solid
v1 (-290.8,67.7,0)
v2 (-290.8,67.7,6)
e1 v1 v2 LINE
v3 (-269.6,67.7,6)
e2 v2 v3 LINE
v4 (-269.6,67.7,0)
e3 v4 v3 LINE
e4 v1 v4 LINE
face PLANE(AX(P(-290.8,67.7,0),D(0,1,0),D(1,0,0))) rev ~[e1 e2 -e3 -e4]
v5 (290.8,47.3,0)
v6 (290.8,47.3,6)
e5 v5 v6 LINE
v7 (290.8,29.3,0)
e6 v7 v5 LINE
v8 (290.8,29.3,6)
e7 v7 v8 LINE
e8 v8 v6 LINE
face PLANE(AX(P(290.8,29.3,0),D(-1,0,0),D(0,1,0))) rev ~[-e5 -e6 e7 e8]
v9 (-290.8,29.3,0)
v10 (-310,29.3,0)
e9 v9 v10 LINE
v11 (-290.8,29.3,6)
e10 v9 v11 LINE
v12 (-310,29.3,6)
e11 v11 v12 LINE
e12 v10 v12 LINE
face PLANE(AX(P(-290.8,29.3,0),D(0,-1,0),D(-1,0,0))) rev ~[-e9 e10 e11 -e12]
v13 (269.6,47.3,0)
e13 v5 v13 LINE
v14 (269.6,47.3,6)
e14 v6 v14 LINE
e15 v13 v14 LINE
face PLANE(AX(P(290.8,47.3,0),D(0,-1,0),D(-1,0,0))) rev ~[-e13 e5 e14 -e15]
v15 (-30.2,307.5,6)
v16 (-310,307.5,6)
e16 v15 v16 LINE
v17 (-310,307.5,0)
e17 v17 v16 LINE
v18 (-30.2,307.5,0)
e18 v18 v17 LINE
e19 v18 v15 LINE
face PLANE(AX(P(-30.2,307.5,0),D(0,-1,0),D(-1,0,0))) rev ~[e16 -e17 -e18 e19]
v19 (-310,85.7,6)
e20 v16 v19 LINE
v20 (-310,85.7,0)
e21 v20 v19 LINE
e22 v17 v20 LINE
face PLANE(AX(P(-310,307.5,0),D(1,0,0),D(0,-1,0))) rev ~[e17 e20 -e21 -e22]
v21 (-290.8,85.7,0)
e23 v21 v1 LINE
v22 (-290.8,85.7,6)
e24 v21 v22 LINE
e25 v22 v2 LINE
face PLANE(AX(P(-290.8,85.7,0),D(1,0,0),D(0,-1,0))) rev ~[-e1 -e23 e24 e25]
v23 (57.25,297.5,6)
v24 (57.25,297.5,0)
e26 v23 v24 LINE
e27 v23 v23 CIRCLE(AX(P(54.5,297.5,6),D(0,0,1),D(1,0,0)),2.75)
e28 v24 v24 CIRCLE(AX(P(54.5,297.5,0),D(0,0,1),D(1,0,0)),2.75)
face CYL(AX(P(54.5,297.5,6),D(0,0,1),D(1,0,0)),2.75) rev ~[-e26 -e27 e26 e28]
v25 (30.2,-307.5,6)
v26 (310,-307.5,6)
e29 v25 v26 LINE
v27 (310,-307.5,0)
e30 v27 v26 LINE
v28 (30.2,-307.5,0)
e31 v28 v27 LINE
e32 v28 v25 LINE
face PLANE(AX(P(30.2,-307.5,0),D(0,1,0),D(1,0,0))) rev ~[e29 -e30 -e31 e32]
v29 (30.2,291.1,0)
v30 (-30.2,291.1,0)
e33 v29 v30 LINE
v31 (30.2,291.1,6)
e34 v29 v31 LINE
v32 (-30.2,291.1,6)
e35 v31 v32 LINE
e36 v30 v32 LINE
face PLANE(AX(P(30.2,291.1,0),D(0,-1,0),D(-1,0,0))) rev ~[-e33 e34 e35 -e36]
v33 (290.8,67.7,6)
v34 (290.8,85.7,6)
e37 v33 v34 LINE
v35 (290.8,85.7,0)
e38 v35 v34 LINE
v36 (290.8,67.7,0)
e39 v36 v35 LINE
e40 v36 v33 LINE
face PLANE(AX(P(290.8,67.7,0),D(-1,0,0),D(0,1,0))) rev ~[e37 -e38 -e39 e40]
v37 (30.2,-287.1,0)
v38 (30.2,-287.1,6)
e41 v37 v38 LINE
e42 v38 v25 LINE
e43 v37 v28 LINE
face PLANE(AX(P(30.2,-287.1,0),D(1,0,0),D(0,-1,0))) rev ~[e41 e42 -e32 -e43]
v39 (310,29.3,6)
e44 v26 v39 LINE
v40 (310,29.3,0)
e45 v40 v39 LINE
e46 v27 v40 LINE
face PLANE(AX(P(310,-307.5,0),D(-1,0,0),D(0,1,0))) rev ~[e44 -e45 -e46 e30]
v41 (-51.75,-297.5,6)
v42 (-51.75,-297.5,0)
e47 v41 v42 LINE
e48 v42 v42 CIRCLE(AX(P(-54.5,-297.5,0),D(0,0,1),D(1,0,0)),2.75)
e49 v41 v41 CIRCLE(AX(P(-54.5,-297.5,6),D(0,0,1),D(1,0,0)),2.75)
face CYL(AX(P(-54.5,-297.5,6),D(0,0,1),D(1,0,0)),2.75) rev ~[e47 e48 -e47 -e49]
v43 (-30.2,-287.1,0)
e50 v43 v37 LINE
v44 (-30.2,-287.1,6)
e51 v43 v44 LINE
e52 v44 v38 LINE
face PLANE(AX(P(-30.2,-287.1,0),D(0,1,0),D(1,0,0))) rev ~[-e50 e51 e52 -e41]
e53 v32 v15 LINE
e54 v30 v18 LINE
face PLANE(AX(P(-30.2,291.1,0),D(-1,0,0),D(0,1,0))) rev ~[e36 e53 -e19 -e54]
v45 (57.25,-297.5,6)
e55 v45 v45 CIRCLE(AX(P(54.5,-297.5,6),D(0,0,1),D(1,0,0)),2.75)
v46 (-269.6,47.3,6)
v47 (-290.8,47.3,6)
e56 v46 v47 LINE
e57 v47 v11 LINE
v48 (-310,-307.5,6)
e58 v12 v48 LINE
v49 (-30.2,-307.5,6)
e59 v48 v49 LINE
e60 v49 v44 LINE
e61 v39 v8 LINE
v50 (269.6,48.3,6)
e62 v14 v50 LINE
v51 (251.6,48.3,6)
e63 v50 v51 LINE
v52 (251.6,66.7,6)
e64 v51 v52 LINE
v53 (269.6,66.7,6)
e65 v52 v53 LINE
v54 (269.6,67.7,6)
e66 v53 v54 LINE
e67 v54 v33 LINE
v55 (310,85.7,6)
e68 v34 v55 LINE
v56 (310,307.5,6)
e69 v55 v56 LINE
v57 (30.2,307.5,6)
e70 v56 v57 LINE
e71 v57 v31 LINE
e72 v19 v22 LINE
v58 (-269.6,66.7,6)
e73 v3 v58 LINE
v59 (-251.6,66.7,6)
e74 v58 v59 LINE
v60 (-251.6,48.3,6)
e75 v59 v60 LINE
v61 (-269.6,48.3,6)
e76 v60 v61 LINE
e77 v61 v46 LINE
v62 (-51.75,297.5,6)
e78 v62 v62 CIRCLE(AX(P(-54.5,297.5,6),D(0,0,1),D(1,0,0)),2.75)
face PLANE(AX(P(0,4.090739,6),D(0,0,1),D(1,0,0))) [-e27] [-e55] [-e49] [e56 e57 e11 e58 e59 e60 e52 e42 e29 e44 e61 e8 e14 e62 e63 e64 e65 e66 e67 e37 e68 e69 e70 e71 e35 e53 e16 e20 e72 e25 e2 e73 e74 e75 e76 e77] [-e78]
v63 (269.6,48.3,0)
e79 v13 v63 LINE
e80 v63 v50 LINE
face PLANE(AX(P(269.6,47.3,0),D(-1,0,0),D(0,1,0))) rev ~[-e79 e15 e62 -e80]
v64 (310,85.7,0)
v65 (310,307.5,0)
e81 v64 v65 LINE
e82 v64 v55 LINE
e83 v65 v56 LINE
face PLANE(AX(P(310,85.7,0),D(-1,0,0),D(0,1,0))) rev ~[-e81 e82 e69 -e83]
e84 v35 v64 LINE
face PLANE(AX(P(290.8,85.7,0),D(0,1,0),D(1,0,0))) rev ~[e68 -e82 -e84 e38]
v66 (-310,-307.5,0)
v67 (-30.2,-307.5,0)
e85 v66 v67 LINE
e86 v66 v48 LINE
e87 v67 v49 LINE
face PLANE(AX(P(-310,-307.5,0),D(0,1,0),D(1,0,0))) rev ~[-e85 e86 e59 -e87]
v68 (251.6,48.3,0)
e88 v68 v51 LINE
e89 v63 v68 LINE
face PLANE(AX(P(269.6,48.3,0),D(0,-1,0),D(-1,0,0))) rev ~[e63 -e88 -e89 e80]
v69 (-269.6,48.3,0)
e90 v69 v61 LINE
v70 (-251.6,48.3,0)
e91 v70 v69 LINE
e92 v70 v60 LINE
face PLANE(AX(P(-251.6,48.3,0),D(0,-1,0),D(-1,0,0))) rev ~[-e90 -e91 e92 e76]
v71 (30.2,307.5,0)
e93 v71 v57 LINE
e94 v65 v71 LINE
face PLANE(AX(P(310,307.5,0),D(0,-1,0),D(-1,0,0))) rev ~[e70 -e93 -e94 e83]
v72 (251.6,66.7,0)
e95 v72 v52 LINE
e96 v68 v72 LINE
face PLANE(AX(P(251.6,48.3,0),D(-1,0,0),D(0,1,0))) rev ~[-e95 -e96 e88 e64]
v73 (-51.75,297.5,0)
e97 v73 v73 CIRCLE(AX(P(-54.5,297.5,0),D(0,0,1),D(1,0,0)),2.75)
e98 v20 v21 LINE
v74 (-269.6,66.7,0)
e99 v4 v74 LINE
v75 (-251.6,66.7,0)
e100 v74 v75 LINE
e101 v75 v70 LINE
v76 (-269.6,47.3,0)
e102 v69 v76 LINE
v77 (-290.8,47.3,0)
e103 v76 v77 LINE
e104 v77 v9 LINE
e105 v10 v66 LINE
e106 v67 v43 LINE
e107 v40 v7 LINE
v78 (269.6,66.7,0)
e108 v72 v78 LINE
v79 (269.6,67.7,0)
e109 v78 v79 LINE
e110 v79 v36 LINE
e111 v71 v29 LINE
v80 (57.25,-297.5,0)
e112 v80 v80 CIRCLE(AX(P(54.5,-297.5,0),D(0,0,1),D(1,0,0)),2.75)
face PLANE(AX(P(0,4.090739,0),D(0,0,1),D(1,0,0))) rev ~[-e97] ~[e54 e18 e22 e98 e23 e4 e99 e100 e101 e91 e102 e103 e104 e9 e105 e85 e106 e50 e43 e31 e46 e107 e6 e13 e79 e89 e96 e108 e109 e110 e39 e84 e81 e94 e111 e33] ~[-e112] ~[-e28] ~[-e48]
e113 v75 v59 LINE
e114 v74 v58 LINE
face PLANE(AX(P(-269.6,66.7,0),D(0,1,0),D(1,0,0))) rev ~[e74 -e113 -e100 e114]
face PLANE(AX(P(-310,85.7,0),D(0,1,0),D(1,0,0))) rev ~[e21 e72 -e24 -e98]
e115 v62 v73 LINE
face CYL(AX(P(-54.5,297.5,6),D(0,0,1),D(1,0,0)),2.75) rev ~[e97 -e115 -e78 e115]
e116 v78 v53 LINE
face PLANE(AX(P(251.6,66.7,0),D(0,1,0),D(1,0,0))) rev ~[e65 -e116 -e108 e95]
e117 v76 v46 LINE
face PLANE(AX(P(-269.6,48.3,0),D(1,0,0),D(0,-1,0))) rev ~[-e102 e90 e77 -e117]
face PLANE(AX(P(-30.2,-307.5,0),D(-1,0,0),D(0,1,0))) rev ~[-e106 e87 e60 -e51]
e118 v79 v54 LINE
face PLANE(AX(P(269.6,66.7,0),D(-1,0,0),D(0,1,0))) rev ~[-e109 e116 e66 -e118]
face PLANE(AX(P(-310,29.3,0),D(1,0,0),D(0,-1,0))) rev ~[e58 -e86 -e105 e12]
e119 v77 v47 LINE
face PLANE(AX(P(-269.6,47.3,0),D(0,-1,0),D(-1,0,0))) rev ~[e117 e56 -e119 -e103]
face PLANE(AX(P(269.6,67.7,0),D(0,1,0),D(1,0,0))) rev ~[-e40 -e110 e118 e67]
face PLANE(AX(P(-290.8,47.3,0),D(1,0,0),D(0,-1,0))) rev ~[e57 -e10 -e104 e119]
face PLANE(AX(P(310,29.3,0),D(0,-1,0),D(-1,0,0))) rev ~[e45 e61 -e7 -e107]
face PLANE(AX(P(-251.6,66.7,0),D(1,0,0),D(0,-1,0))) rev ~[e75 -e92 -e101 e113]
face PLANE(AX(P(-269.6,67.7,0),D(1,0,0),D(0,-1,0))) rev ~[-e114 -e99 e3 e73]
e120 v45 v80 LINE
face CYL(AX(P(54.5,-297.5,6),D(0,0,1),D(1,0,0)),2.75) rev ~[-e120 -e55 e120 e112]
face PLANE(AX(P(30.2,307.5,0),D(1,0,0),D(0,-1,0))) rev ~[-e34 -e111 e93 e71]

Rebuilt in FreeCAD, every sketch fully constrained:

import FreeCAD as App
import Part
import Sketcher

V = App.Vector


def add_polygon(sketch, points):
    """Adds a closed chain of lines whose ends are joined by coincident constraints."""
    first, n = sketch.GeometryCount, len(points)
    for a, b in zip(points, points[1:] + points[:1]):
        sketch.addGeometry(Part.LineSegment(App.Vector(*a, 0), App.Vector(*b, 0)), False)
    for i in range(n):
        sketch.addConstraint(Sketcher.Constraint("Coincident", first + i, 2, first + (i + 1) % n, 1))

doc = App.newDocument("Part")
body = doc.addObject("PartDesign::Body", "Body")

sketch1 = doc.addObject("Sketcher::SketchObject", "Sketch")
body.addObject(sketch1)
sketch1.AttachmentSupport = (doc.XY_Plane, [""])
sketch1.MapMode = "FlatFace"
add_polygon(sketch1, [(30.2, -307.5), (310, -307.5), (310, 29.3), (290.8, 29.3), (290.8, 47.3), (269.6, 47.3), (269.6, 48.3), (251.6, 48.3), (251.6, 66.7), (269.6, 66.7), (269.6, 67.7), (290.8, 67.7), (290.8, 85.7), (310, 85.7), (310, 307.5), (30.2, 307.5), (30.2, 291.1), (-30.2, 291.1), (-30.2, 307.5), (-310, 307.5), (-310, 85.7), (-290.8, 85.7), (-290.8, 67.7), (-269.6, 67.7), (-269.6, 66.7), (-251.6, 66.7), (-251.6, 48.3), (-269.6, 48.3), (-269.6, 47.3), (-290.8, 47.3), (-290.8, 29.3), (-310, 29.3), (-310, -307.5), (-30.2, -307.5), (-30.2, -287.1), (30.2, -287.1)])
sketch1.addConstraint([
    Sketcher.Constraint("Horizontal", 0),
    Sketcher.Constraint("Vertical", 1),
    Sketcher.Constraint("Horizontal", 2),
    Sketcher.Constraint("Vertical", 3),
    Sketcher.Constraint("Horizontal", 4),
    Sketcher.Constraint("Vertical", 5),
    Sketcher.Constraint("Horizontal", 6),
    Sketcher.Constraint("Vertical", 7),
    Sketcher.Constraint("Horizontal", 8),
    Sketcher.Constraint("Vertical", 9),
    Sketcher.Constraint("Horizontal", 10),
    Sketcher.Constraint("Vertical", 11),
    Sketcher.Constraint("Horizontal", 12),
    Sketcher.Constraint("Vertical", 13),
    Sketcher.Constraint("Horizontal", 14),
    Sketcher.Constraint("Vertical", 15),
    Sketcher.Constraint("Horizontal", 16),
    Sketcher.Constraint("Vertical", 17),
    Sketcher.Constraint("Horizontal", 18),
    Sketcher.Constraint("Vertical", 19),
    Sketcher.Constraint("Horizontal", 20),
    Sketcher.Constraint("Vertical", 21),
    Sketcher.Constraint("Horizontal", 22),
    Sketcher.Constraint("Vertical", 23),
    Sketcher.Constraint("Horizontal", 24),
    Sketcher.Constraint("Vertical", 25),
    Sketcher.Constraint("Horizontal", 26),
    Sketcher.Constraint("Vertical", 27),
    Sketcher.Constraint("Horizontal", 28),
    Sketcher.Constraint("Vertical", 29),
    Sketcher.Constraint("Horizontal", 30),
    Sketcher.Constraint("Vertical", 31),
    Sketcher.Constraint("Horizontal", 32),
    Sketcher.Constraint("Vertical", 33),
    Sketcher.Constraint("Horizontal", 34),
    Sketcher.Constraint("Vertical", 35),
    Sketcher.Constraint("Symmetric", 0, 2, 18, 2, -1, 1),
    Sketcher.Constraint("Symmetric", 13, 2, 31, 2, -1, 1),
    Sketcher.Constraint("Symmetric", 14, 2, 17, 2, -2),
    Sketcher.Constraint("Symmetric", 12, 2, 19, 2, -2),
    Sketcher.Constraint("Symmetric", 10, 2, 21, 2, -2),
    Sketcher.Constraint("Symmetric", 8, 2, 23, 2, -2),
    Sketcher.Constraint("Symmetric", 6, 2, 25, 2, -2),
    Sketcher.Constraint("Symmetric", 4, 2, 27, 2, -2),
    Sketcher.Constraint("Symmetric", 2, 2, 29, 2, -2),
    Sketcher.Constraint("Vertical", 5, 2, 8, 2),
    Sketcher.Constraint("Vertical", 3, 2, 10, 2),
    Sketcher.Constraint("Vertical", 17, 2, 32, 2),
    Sketcher.Constraint("Vertical", 15, 2, 34, 2),
    Sketcher.Constraint("Equal", 26, 3),
    Sketcher.Constraint("Equal", 5, 9),
    Sketcher.Constraint("Equal", 3, 11),
    Sketcher.Constraint("DistanceX", 6, 2, 6, 1, 18.0),
    Sketcher.Constraint("DistanceY", 5, 1, 5, 2, 1.0),
    Sketcher.Constraint("DistanceX", 0, 1, 0, 2, 279.8),
    Sketcher.Constraint("DistanceX", 2, 2, 2, 1, 19.2),
    Sketcher.Constraint("DistanceX", 4, 2, 4, 1, 21.2),
    Sketcher.Constraint("DistanceX", 16, 2, 16, 1, 60.4),
    Sketcher.Constraint("DistanceY", 1, 1, 1, 2, 336.8),
    Sketcher.Constraint("DistanceY", 7, 1, 7, 2, 18.4),
    Sketcher.Constraint("DistanceY", 13, 1, 13, 2, 221.8),
    Sketcher.Constraint("DistanceY", 15, 2, 15, 1, 16.4),
    Sketcher.Constraint("DistanceY", 33, 1, 33, 2, 20.4),
])
pad1 = doc.addObject("PartDesign::Pad", "Pad")
body.addObject(pad1)
pad1.Profile = sketch1
pad1.Length = 6

sketch2 = doc.addObject("Sketcher::SketchObject", "Sketch001")
body.addObject(sketch2)
sketch2.AttachmentSupport = (doc.XY_Plane, [""])
sketch2.MapMode = "FlatFace"
sketch2.AttachmentOffset = App.Placement(V(0, 0, 6), App.Rotation())
sketch2.addGeometry([
    Part.Circle(V(-54.5, 297.5, 0), V(0, 0, 1), 2.8),
    Part.Circle(V(54.5, 297.5, 0), V(0, 0, 1), 2.8),
    Part.Circle(V(-54.5, -297.5, 0), V(0, 0, 1), 2.8),
    Part.Circle(V(54.5, -297.5, 0), V(0, 0, 1), 2.8),
], False)
sketch2.addConstraint([
    Sketcher.Constraint("Equal", 0, 1),
    Sketcher.Constraint("Equal", 1, 2),
    Sketcher.Constraint("Equal", 2, 3),
    Sketcher.Constraint("Symmetric", 1, 3, 2, 3, -1, 1),
    Sketcher.Constraint("Symmetric", 0, 3, 3, 3, -1, 1),
    Sketcher.Constraint("Symmetric", 0, 3, 1, 3, -2),
    Sketcher.Constraint("Diameter", 0, 5.5),
    Sketcher.Constraint("DistanceX", 0, 3, 1, 3, 109.0),
    Sketcher.Constraint("DistanceY", 2, 3, 0, 3, 595.0),
])
pocket1 = doc.addObject("PartDesign::Pocket", "Pocket")
body.addObject(pocket1)
pocket1.Profile = sketch2
pocket1.Type = "ThroughAll"

doc.recompute()
